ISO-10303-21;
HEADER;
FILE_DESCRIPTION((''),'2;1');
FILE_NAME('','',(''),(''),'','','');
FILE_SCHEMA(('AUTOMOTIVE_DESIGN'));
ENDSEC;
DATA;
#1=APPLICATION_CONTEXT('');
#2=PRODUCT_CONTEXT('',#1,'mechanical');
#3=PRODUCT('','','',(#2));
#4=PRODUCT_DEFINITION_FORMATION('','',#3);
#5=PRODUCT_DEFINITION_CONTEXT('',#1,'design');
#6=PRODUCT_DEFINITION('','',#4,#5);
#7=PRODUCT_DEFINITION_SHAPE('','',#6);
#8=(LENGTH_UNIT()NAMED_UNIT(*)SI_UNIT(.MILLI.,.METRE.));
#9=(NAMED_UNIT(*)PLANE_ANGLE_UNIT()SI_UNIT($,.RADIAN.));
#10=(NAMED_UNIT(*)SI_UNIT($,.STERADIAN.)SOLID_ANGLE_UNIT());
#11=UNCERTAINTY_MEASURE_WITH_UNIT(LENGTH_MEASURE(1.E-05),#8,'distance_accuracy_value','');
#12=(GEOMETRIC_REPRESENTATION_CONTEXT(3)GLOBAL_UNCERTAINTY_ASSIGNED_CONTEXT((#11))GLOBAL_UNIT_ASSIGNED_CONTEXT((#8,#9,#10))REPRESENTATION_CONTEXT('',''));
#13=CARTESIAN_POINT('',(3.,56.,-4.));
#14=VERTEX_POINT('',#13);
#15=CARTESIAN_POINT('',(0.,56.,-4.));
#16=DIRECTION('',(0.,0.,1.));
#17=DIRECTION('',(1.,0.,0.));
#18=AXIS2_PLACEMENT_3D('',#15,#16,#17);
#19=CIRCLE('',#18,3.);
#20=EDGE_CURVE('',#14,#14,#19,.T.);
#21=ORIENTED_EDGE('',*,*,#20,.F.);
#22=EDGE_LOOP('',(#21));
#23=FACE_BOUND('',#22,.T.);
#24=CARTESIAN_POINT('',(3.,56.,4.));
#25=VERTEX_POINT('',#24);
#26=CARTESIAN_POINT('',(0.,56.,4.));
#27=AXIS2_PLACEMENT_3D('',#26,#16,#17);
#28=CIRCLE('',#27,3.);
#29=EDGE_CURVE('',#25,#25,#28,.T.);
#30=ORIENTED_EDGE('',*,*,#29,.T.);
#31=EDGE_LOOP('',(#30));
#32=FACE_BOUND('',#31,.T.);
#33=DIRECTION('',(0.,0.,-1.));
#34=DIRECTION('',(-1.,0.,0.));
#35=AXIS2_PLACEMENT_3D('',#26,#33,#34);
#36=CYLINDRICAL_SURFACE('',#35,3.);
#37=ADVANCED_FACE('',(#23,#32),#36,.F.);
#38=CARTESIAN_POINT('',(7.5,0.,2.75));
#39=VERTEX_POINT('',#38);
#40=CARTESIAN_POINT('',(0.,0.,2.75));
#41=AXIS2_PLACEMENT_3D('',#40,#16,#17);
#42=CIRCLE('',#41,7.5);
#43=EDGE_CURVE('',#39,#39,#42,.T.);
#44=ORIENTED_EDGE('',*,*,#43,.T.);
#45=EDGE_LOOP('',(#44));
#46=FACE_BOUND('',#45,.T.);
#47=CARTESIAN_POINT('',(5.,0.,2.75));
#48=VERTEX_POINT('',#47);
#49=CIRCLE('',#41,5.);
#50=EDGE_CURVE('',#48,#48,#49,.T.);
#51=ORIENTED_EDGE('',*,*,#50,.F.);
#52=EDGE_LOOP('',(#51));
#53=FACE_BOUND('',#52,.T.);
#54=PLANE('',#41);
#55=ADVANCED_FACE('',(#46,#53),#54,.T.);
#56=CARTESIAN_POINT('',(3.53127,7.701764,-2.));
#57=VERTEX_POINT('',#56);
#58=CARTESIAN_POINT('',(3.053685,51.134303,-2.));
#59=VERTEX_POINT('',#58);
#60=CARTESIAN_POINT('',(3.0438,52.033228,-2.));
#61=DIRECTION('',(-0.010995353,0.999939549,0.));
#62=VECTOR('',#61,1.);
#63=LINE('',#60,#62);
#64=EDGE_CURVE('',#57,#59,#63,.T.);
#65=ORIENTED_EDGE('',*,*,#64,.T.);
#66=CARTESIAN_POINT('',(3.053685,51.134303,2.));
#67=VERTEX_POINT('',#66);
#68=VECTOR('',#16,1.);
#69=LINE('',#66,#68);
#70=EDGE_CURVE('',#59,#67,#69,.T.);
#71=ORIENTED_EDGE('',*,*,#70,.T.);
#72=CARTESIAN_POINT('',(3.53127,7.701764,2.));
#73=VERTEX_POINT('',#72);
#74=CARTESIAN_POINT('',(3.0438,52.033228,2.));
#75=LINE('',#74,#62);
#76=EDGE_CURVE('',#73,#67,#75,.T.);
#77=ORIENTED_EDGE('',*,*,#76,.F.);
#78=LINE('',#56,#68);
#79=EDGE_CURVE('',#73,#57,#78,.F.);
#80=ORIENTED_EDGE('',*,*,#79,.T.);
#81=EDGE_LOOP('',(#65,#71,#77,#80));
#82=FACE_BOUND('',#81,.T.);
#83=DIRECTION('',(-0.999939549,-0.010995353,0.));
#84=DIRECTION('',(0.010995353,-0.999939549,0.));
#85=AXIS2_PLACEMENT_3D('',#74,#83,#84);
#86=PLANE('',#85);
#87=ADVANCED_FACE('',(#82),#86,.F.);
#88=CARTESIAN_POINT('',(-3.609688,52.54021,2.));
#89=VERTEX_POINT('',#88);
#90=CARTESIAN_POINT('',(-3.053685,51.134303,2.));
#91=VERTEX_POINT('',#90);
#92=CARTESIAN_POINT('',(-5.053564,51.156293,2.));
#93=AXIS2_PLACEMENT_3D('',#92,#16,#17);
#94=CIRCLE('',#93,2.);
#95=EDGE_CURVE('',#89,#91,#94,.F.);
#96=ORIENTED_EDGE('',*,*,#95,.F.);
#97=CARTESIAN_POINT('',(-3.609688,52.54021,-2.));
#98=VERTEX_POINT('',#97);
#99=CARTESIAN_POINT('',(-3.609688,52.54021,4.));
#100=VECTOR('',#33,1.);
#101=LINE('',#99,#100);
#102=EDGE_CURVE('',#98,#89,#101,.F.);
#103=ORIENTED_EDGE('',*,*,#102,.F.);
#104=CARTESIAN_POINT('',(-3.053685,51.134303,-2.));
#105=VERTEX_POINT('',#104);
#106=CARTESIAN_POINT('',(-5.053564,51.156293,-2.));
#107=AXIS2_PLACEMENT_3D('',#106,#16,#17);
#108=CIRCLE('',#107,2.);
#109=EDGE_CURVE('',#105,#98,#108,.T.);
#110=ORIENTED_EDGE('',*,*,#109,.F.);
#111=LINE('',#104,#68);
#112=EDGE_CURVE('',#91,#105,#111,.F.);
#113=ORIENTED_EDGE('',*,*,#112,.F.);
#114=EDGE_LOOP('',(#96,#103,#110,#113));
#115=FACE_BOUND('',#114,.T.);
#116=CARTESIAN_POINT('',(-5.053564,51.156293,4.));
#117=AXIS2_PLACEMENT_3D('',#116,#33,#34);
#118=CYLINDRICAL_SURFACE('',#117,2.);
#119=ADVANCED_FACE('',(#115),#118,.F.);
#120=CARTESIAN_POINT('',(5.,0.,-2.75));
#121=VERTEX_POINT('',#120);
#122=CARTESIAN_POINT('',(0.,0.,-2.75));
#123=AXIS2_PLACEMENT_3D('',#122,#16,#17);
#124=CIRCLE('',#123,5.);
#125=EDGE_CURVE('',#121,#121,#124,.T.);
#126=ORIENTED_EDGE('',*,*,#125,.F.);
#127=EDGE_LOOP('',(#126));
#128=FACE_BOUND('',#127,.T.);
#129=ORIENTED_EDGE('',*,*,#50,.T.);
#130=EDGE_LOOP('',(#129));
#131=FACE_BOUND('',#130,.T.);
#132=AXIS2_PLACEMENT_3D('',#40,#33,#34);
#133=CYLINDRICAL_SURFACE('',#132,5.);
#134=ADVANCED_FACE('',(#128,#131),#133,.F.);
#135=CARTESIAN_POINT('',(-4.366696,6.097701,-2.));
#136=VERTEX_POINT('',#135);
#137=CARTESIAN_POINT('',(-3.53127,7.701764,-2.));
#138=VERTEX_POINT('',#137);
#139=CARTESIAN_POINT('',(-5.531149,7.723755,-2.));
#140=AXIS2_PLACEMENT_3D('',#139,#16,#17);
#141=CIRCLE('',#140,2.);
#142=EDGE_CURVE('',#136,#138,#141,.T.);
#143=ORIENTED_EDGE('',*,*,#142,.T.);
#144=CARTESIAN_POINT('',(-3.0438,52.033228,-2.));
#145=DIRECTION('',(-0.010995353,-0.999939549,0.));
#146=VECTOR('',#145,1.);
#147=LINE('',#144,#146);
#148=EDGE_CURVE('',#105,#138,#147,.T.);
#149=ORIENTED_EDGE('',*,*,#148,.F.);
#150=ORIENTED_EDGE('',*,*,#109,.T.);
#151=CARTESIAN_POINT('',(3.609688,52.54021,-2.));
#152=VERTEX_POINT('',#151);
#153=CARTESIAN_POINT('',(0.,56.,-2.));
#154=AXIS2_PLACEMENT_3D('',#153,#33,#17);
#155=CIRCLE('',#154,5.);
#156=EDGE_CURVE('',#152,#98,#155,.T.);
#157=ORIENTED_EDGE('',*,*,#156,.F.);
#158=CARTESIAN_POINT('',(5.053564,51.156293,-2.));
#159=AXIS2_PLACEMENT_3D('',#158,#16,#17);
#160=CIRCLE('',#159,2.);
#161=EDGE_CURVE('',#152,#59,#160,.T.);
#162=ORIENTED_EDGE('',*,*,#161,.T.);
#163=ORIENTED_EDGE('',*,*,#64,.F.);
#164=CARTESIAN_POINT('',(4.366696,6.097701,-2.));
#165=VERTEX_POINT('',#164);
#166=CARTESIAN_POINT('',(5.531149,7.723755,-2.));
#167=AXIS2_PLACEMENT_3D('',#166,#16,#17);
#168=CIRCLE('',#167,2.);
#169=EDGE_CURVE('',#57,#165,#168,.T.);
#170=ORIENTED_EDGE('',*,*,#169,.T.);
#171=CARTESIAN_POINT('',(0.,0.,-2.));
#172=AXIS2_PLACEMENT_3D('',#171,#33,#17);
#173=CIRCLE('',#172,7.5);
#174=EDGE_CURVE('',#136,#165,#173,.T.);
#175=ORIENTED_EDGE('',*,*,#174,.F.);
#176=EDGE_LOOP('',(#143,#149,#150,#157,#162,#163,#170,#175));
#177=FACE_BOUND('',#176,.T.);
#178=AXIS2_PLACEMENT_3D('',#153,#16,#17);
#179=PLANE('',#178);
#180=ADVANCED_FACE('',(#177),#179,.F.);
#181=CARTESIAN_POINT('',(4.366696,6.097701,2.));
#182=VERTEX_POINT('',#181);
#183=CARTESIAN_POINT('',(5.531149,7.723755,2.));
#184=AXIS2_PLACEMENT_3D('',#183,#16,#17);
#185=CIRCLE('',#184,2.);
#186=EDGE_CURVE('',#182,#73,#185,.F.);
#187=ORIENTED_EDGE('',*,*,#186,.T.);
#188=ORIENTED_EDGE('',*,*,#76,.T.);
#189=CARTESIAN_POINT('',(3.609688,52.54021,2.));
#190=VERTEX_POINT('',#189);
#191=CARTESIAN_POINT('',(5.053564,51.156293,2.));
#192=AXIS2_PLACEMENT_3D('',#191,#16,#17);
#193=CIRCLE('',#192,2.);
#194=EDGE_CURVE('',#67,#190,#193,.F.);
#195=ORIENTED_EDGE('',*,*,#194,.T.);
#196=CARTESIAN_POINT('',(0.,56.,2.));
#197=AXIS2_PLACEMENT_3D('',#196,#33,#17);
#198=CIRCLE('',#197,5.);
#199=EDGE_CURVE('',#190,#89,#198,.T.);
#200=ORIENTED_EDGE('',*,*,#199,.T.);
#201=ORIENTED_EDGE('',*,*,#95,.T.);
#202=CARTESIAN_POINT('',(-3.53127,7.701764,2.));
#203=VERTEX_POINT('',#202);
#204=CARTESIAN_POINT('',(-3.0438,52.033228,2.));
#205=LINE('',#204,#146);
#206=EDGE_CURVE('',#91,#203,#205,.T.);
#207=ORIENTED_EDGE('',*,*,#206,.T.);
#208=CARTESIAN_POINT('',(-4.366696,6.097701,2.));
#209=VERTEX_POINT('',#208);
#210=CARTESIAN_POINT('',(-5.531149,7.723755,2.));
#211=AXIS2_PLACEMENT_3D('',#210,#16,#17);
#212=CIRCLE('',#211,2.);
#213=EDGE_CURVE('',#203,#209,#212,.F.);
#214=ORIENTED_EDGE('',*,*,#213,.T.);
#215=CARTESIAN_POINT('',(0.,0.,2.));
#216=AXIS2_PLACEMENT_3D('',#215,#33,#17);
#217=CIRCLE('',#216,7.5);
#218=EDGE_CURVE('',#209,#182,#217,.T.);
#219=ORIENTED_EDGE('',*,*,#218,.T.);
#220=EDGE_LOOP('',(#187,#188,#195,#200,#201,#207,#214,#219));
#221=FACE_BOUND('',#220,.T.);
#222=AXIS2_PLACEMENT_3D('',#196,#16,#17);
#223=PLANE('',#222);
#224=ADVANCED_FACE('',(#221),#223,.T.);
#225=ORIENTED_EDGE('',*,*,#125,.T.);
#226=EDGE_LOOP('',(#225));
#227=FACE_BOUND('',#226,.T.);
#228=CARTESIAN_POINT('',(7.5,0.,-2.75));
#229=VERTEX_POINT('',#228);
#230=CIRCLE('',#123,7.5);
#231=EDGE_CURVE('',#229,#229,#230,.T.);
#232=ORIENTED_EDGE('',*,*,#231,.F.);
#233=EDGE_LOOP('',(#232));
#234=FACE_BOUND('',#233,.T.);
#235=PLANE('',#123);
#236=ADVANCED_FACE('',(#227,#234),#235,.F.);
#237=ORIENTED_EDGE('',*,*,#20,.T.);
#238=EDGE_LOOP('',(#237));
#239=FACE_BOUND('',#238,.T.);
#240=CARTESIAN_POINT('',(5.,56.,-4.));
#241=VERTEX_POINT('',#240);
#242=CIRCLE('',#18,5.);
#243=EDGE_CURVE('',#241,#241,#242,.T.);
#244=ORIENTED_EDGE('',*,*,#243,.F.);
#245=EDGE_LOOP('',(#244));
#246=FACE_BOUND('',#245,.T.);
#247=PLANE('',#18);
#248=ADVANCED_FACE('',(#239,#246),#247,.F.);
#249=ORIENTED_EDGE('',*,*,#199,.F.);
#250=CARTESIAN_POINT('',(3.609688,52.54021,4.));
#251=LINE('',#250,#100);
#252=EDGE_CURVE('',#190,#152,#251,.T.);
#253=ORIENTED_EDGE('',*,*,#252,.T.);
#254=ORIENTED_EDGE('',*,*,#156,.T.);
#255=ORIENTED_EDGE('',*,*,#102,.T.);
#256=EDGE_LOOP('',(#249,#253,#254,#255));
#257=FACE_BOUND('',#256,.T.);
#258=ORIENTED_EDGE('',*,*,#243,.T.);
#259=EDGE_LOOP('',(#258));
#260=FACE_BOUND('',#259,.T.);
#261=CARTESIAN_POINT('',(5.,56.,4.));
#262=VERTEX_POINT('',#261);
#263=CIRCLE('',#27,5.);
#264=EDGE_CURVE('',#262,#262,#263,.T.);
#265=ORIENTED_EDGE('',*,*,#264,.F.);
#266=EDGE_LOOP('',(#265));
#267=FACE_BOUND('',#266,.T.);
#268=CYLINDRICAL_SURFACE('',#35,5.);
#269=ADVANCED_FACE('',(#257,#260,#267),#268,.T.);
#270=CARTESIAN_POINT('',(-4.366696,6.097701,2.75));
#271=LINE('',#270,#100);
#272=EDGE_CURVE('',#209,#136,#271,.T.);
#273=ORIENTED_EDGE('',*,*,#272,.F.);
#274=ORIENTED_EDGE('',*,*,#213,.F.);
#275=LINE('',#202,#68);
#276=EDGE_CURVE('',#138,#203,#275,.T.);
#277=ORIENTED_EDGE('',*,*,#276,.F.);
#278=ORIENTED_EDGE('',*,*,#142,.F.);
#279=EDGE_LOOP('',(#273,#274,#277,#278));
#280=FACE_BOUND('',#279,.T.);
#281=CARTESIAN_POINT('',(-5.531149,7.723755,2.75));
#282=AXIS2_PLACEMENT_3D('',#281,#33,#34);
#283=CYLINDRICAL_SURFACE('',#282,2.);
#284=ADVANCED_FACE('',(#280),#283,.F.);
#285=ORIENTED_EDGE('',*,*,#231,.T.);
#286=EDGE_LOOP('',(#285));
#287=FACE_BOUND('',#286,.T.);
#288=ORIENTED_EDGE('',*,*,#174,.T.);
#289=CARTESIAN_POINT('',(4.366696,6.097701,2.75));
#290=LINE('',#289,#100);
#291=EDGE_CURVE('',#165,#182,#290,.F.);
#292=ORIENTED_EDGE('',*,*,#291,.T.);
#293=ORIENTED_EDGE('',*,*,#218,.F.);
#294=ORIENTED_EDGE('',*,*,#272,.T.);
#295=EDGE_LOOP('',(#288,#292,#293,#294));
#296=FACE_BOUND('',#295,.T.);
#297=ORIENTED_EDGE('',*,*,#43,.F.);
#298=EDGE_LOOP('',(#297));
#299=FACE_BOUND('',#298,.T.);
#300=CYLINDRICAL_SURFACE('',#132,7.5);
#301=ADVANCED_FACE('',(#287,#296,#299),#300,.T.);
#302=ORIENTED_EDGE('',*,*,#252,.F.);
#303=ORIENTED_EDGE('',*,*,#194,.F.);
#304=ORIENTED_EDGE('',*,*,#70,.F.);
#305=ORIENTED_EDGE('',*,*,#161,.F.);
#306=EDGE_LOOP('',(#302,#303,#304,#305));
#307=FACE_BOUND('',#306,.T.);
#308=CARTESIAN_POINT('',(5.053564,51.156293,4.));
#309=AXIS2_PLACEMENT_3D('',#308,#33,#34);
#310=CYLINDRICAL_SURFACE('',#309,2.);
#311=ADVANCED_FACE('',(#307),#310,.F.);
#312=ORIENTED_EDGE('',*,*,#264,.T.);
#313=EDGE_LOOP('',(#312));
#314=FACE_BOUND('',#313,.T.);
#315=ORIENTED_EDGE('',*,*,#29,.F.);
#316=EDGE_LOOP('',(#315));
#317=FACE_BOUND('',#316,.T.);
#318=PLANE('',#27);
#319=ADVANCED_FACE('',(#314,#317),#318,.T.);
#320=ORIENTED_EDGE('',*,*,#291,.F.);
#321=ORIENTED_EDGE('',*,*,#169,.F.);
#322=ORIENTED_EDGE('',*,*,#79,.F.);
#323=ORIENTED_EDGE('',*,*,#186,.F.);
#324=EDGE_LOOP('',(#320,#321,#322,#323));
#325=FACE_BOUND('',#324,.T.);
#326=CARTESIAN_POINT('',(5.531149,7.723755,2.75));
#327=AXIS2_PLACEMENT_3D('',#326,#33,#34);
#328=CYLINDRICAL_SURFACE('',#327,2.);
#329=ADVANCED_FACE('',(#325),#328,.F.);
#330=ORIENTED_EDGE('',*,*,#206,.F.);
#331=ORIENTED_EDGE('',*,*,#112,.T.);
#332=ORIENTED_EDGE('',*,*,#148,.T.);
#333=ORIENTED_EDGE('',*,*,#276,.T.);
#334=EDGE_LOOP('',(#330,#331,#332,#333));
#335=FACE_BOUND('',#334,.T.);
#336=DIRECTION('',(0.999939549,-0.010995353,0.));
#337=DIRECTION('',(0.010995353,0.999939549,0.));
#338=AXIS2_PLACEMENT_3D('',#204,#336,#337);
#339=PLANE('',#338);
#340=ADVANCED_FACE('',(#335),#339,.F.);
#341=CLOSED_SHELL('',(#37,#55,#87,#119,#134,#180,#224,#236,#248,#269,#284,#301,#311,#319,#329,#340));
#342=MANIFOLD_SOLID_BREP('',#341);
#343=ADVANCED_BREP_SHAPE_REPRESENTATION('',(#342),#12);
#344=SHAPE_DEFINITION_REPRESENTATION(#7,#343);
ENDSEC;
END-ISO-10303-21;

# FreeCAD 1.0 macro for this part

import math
import FreeCAD as App
import Part
import Sketcher

V = App.Vector
Q = App.Units.Quantity


def edges_at(feature, points):
    """Names of the edges that pass closest to the given points."""
    edges = feature.Shape.Edges
    near = lambda p: min(range(len(edges)), key=lambda i: edges[i].distToShape(Part.Vertex(*p))[0])
    return sorted({f"Edge{near(p) + 1}" for p in points})

doc = App.newDocument("Part")
body = doc.addObject("PartDesign::Body", "Body")

# Sketch on XY plane
sketch1 = body.newObject("Sketcher::SketchObject", "Sketch")
sketch1.AttachmentSupport = (doc.getObject("XY_Plane"), [""])
sketch1.MapMode = "FlatFace"
sketch1.addGeometry([
    Part.Circle(V(0, 0, 0), V(0, 0, 1), 8),
    Part.Circle(V(0, 0, 0), V(0, 0, 1), 5),
], False)
sketch1.addConstraint([
    Sketcher.Constraint("Coincident", 0, 3, -1, 1),
    Sketcher.Constraint("Coincident", 1, 3, -1, 1),
    Sketcher.Constraint("Diameter", 0, Q("15 mm")),
    Sketcher.Constraint("Diameter", 1, Q("10 mm")),
])
pad1 = body.newObject("PartDesign::Pad", "Pad")
pad1.Profile = sketch1
pad1.Length = 5.5
pad1.Midplane = True
body2 = doc.addObject("PartDesign::Body", "Body001")

# Sketch on XY plane
sketch2 = body2.newObject("Sketcher::SketchObject", "Sketch001")
sketch2.AttachmentSupport = (doc.getObject("XY_Plane001"), [""])
sketch2.MapMode = "FlatFace"
sketch2.addGeometry([
    Part.Circle(V(0, 56, 0), V(0, 0, 1), 5),
    Part.Circle(V(0, 56, 0), V(0, 0, 1), 3),
], False)
sketch2.addConstraint([
    Sketcher.Constraint("Coincident", 1, 3, 0, 3),
    Sketcher.Constraint("PointOnObject", 0, 3, -2),
    Sketcher.Constraint("Diameter", 0, Q("10 mm")),
    Sketcher.Constraint("Diameter", 1, Q("6 mm")),
    Sketcher.Constraint("DistanceY", -1, 1, 0, 3, Q("56 mm")),
])
pad2 = body2.newObject("PartDesign::Pad", "Pad001")
pad2.Profile = sketch2
pad2.Length = 8
pad2.Midplane = True
body.AllowCompound = True
doc.recompute()

boolean = body.newObject("PartDesign::Boolean", "Boolean")
boolean.Type = "Fuse"
boolean.addObjects([body2])

# Sketch on XY plane
sketch3 = body.newObject("Sketcher::SketchObject", "Sketch002")
sketch3.AttachmentSupport = (doc.getObject("XY_Plane"), [""])
sketch3.MapMode = "FlatFace"
sketch3.addGeometry([
    Part.LineSegment(V(-3, 52, 0), V(-4, 7, 0)),
    Part.ArcOfCircle(Part.Circle(V(0, 0, 0), V(0, 0, 1), 7), math.radians(62), math.radians(118)),
    Part.LineSegment(V(4, 7, 0), V(3, 52, 0)),
    Part.ArcOfCircle(Part.Circle(V(0, 56, 0), V(0, 0, 1), 5), math.radians(-127), math.radians(-53)),
], False)
sketch3.addConstraint([
    Sketcher.Constraint("Coincident", 0, 2, 1, 2),
    Sketcher.Constraint("Coincident", 1, 1, 2, 1),
    Sketcher.Constraint("Coincident", 2, 2, 3, 2),
    Sketcher.Constraint("Coincident", 3, 1, 0, 1),
    Sketcher.Constraint("Coincident", 1, 3, -1, 1),
    Sketcher.Constraint("Symmetric", 2, 2, 3, 1, -2),
    Sketcher.Constraint("Horizontal", 0, 2, 1, 1),
    Sketcher.Constraint("Radius", 3, Q("5 mm")),
    Sketcher.Constraint("Radius", 1, Q("7.5 mm")),
    Sketcher.Constraint("DistanceY", -1, 1, 3, 3, Q("56 mm")),
    Sketcher.Constraint("Angle", 0, Q("-90.63 deg")),
    Sketcher.Constraint("DistanceX", -1, 1, 2, 2, Q("3.0438 mm")),
])
pad3 = body.newObject("PartDesign::Pad", "Pad002")
pad3.Profile = sketch3
pad3.Length = 4
pad3.Midplane = True
doc.recompute()

fillet = body.newObject("PartDesign::Fillet", "Fillet")
fillet.Base = (pad3, edges_at(pad3, [
    (3.044, 52.033, 0),
    (-3.044, 52.033, 0),
    (-3.543, 6.61, 0),
    (3.543, 6.61, 0),
]))
fillet.Radius = 2

doc.recompute()
